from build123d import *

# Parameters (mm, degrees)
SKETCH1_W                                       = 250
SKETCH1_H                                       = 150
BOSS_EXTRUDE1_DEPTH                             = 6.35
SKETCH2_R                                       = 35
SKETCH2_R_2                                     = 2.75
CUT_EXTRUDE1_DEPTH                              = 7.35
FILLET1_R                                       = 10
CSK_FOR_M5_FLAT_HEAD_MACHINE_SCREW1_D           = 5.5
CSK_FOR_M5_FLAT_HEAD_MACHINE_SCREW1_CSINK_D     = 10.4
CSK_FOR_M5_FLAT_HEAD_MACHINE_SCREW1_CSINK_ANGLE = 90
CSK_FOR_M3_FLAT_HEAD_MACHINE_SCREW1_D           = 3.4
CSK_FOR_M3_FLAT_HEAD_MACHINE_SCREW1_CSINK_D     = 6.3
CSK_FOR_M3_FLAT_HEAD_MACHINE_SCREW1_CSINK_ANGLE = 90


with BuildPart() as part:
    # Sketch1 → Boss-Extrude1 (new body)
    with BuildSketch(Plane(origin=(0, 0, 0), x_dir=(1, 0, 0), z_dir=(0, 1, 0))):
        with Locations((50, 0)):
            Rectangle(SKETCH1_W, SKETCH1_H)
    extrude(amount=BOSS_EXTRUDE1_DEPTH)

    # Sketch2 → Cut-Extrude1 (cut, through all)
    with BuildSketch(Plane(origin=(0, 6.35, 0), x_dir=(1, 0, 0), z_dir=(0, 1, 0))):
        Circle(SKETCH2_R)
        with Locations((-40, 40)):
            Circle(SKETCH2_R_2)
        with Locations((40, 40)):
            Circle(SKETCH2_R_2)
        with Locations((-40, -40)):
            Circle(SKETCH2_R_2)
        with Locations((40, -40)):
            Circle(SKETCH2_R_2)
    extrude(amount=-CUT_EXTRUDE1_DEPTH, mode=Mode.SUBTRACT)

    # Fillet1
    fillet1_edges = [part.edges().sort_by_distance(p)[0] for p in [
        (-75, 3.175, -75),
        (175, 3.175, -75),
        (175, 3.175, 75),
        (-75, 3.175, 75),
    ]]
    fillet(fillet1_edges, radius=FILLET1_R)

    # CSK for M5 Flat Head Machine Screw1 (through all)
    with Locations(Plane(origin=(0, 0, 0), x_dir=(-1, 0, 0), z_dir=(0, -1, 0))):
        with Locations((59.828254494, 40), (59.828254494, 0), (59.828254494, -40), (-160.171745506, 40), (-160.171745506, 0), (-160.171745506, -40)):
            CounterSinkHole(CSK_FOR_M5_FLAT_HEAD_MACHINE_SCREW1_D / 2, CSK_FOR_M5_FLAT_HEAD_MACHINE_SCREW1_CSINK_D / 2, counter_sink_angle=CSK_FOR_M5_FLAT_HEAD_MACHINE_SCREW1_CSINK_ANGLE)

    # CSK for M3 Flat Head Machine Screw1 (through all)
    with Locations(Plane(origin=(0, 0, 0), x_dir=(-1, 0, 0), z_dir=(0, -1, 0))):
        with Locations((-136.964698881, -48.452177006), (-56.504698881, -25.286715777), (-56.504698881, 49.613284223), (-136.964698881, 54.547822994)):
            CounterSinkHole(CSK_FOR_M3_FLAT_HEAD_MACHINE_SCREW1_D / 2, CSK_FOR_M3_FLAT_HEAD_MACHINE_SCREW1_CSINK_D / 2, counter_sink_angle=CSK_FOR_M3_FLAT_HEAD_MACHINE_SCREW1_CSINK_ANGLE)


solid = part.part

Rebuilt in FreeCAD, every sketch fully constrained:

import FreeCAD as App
import Part
import Sketcher
Q = App.Units.Quantity


def edges_at(feature, points):
    """Names of the edges that pass closest to the given points."""
    edges = feature.Shape.Edges
    near = lambda p: min(range(len(edges)), key=lambda i: edges[i].distToShape(Part.Vertex(*p))[0])
    return sorted({f"Edge{near(p) + 1}" for p in points})


def add_polygon(sketch, points):
    """Adds a closed chain of lines whose ends are joined by coincident constraints."""
    first, n = sketch.GeometryCount, len(points)
    for a, b in zip(points, points[1:] + points[:1]):
        sketch.addGeometry(Part.LineSegment(App.Vector(*a, 0), App.Vector(*b, 0)), False)
    for i in range(n):
        sketch.addConstraint(Sketcher.Constraint("Coincident", first + i, 2, first + (i + 1) % n, 1))

doc = App.newDocument("Part")
body = doc.addObject("PartDesign::Body", "Body")

sketch1 = body.newObject("Sketcher::SketchObject", "Sketch")
sketch1.AttachmentSupport = (doc.getObject("XZ_Plane"), [""])
sketch1.MapMode = "FlatFace"
add_polygon(sketch1, [(-75, -75), (-75, 75), (175, 75), (175, -75)])
sketch1.addConstraint([
    Sketcher.Constraint("Vertical", 0),
    Sketcher.Constraint("Horizontal", 1),
    Sketcher.Constraint("Vertical", 2),
    Sketcher.Constraint("Horizontal", 3),
    Sketcher.Constraint("DistanceX", 1, 1, 1, 2, Q("250 mm")),
    Sketcher.Constraint("DistanceY", 0, 1, 0, 2, Q("150 mm")),
    Sketcher.Constraint("DistanceX", 0, 2, -1, 1, Q("75 mm")),
    Sketcher.Constraint("DistanceY", -1, 1, 0, 2, Q("75 mm")),
])
pad1 = body.newObject("PartDesign::Pad", "Pad")
pad1.Profile = sketch1
pad1.Length = 6.35
pad1.Reversed = True

sketch2 = body.newObject("Sketcher::SketchObject", "Sketch001")
sketch2.AttachmentSupport = (doc.getObject("XZ_Plane"), [""])
sketch2.MapMode = "FlatFace"
sketch2.AttachmentOffset = App.Placement(App.Vector(0, 0, -6.35), App.Rotation())
sketch2.addGeometry([
    Part.Circle(App.Vector(0, 0, 0), App.Vector(0, 0, 1), 35),
    Part.Circle(App.Vector(-40, -40, 0), App.Vector(0, 0, 1), 2.8),
    Part.Circle(App.Vector(40, -40, 0), App.Vector(0, 0, 1), 2.8),
    Part.Circle(App.Vector(-40, 40, 0), App.Vector(0, 0, 1), 2.8),
    Part.Circle(App.Vector(40, 40, 0), App.Vector(0, 0, 1), 2.8),
], False)
sketch2.addConstraint([
    Sketcher.Constraint("Coincident", 0, 3, -1, 1),
    Sketcher.Constraint("Equal", 1, 2),
    Sketcher.Constraint("Equal", 2, 3),
    Sketcher.Constraint("Equal", 3, 4),
    Sketcher.Constraint("Symmetric", 2, 3, 3, 3, -1, 1),
    Sketcher.Constraint("Symmetric", 1, 3, 4, 3, -1, 1),
    Sketcher.Constraint("Symmetric", 1, 3, 2, 3, -2),
    Sketcher.Constraint("Diameter", 0, Q("70 mm")),
    Sketcher.Constraint("Diameter", 1, Q("5.5 mm")),
    Sketcher.Constraint("DistanceX", 1, 3, -1, 1, Q("40 mm")),
    Sketcher.Constraint("DistanceY", 1, 3, -1, 1, Q("40 mm")),
])
pocket1 = body.newObject("PartDesign::Pocket", "Pocket")
pocket1.Profile = sketch2
pocket1.Type = "ThroughAll"
pocket1.Reversed = True
doc.recompute()

fillet = body.newObject("PartDesign::Fillet", "Fillet")
fillet.Base = (pocket1, edges_at(pocket1, [
    (-75, 3.175, -75),
    (175, 3.175, -75),
    (175, 3.175, 75),
    (-75, 3.175, 75),
]))
fillet.Radius = 10

sketch3 = body.newObject("Sketcher::SketchObject", "Sketch002")
sketch3.AttachmentSupport = (doc.getObject("XZ_Plane"), [""])
sketch3.MapMode = "FlatFace"
sketch3.addGeometry([
    Part.Circle(App.Vector(-59.8, -40, 0), App.Vector(0, 0, 1), 2.8),
    Part.Circle(App.Vector(-59.8, 0, 0), App.Vector(0, 0, 1), 2.8),
    Part.Circle(App.Vector(-59.8, 40, 0), App.Vector(0, 0, 1), 2.8),
    Part.Circle(App.Vector(160.2, -40, 0), App.Vector(0, 0, 1), 2.8),
    Part.Circle(App.Vector(160.2, 0, 0), App.Vector(0, 0, 1), 2.8),
    Part.Circle(App.Vector(160.2, 40, 0), App.Vector(0, 0, 1), 2.8),
], False)
sketch3.addConstraint([
    Sketcher.Constraint("Equal", 0, 1),
    Sketcher.Constraint("Equal", 1, 2),
    Sketcher.Constraint("Equal", 2, 3),
    Sketcher.Constraint("Equal", 3, 4),
    Sketcher.Constraint("Equal", 4, 5),
    Sketcher.Constraint("Symmetric", 0, 3, 2, 3, -1),
    Sketcher.Constraint("Symmetric", 3, 3, 5, 3, -1),
    Sketcher.Constraint("PointOnObject", 1, 3, -1),
    Sketcher.Constraint("PointOnObject", 4, 3, -1),
    Sketcher.Constraint("Horizontal", 0, 3, 3, 3),
    Sketcher.Constraint("Vertical", 0, 3, 1, 3),
    Sketcher.Constraint("Vertical", 3, 3, 4, 3),
    Sketcher.Constraint("Diameter", 0, Q("5.5 mm")),
    Sketcher.Constraint("DistanceY", 0, 3, -1, 1, Q("40 mm")),
    Sketcher.Constraint("DistanceX", 0, 3, 3, 3, Q("220 mm")),
    Sketcher.Constraint("DistanceX", 0, 3, -1, 1, Q("59.828254 mm")),
])
doc.recompute()
hole = body.newObject("PartDesign::Hole", "Hole")
hole.Profile = sketch3
hole.ThreadType = "None"
hole.Diameter = 5.5
hole.DepthType = "ThroughAll"
hole.HoleCutType = "Countersink"
hole.HoleCutDiameter = 10.4
hole.HoleCutCountersinkAngle = 90

sketch4 = body.newObject("Sketcher::SketchObject", "Sketch003")
sketch4.AttachmentSupport = (doc.getObject("XZ_Plane"), [""])
sketch4.MapMode = "FlatFace"
sketch4.addGeometry([
    Part.Circle(App.Vector(137, 48.5, 0), App.Vector(0, 0, 1), 1.7),
    Part.Circle(App.Vector(56.5, 25.3, 0), App.Vector(0, 0, 1), 1.7),
    Part.Circle(App.Vector(56.5, -49.6, 0), App.Vector(0, 0, 1), 1.7),
    Part.Circle(App.Vector(137, -54.5, 0), App.Vector(0, 0, 1), 1.7),
], False)
sketch4.addConstraint([
    Sketcher.Constraint("Equal", 0, 1),
    Sketcher.Constraint("Equal", 1, 2),
    Sketcher.Constraint("Equal", 2, 3),
    Sketcher.Constraint("Vertical", 1, 3, 2, 3),
    Sketcher.Constraint("Vertical", 0, 3, 3, 3),
    Sketcher.Constraint("Diameter", 0, Q("3.4 mm")),
    Sketcher.Constraint("DistanceY", 3, 3, 0, 3, Q("103 mm")),
    Sketcher.Constraint("DistanceY", 2, 3, 1, 3, Q("74.9 mm")),
    Sketcher.Constraint("DistanceX", 1, 3, 0, 3, Q("80.46 mm")),
    Sketcher.Constraint("DistanceX", -1, 1, 0, 3, Q("136.964699 mm")),
    Sketcher.Constraint("DistanceY", 1, 3, 0, 3, Q("23.165461 mm")),
    Sketcher.Constraint("DistanceY", -1, 1, 0, 3, Q("48.452177 mm")),
])
doc.recompute()
hole2 = body.newObject("PartDesign::Hole", "Hole001")
hole2.Profile = sketch4
hole2.ThreadType = "None"
hole2.Diameter = 3.4
hole2.DepthType = "ThroughAll"
hole2.HoleCutType = "Countersink"
hole2.HoleCutDiameter = 6.3
hole2.HoleCutCountersinkAngle = 90

doc.recompute()
